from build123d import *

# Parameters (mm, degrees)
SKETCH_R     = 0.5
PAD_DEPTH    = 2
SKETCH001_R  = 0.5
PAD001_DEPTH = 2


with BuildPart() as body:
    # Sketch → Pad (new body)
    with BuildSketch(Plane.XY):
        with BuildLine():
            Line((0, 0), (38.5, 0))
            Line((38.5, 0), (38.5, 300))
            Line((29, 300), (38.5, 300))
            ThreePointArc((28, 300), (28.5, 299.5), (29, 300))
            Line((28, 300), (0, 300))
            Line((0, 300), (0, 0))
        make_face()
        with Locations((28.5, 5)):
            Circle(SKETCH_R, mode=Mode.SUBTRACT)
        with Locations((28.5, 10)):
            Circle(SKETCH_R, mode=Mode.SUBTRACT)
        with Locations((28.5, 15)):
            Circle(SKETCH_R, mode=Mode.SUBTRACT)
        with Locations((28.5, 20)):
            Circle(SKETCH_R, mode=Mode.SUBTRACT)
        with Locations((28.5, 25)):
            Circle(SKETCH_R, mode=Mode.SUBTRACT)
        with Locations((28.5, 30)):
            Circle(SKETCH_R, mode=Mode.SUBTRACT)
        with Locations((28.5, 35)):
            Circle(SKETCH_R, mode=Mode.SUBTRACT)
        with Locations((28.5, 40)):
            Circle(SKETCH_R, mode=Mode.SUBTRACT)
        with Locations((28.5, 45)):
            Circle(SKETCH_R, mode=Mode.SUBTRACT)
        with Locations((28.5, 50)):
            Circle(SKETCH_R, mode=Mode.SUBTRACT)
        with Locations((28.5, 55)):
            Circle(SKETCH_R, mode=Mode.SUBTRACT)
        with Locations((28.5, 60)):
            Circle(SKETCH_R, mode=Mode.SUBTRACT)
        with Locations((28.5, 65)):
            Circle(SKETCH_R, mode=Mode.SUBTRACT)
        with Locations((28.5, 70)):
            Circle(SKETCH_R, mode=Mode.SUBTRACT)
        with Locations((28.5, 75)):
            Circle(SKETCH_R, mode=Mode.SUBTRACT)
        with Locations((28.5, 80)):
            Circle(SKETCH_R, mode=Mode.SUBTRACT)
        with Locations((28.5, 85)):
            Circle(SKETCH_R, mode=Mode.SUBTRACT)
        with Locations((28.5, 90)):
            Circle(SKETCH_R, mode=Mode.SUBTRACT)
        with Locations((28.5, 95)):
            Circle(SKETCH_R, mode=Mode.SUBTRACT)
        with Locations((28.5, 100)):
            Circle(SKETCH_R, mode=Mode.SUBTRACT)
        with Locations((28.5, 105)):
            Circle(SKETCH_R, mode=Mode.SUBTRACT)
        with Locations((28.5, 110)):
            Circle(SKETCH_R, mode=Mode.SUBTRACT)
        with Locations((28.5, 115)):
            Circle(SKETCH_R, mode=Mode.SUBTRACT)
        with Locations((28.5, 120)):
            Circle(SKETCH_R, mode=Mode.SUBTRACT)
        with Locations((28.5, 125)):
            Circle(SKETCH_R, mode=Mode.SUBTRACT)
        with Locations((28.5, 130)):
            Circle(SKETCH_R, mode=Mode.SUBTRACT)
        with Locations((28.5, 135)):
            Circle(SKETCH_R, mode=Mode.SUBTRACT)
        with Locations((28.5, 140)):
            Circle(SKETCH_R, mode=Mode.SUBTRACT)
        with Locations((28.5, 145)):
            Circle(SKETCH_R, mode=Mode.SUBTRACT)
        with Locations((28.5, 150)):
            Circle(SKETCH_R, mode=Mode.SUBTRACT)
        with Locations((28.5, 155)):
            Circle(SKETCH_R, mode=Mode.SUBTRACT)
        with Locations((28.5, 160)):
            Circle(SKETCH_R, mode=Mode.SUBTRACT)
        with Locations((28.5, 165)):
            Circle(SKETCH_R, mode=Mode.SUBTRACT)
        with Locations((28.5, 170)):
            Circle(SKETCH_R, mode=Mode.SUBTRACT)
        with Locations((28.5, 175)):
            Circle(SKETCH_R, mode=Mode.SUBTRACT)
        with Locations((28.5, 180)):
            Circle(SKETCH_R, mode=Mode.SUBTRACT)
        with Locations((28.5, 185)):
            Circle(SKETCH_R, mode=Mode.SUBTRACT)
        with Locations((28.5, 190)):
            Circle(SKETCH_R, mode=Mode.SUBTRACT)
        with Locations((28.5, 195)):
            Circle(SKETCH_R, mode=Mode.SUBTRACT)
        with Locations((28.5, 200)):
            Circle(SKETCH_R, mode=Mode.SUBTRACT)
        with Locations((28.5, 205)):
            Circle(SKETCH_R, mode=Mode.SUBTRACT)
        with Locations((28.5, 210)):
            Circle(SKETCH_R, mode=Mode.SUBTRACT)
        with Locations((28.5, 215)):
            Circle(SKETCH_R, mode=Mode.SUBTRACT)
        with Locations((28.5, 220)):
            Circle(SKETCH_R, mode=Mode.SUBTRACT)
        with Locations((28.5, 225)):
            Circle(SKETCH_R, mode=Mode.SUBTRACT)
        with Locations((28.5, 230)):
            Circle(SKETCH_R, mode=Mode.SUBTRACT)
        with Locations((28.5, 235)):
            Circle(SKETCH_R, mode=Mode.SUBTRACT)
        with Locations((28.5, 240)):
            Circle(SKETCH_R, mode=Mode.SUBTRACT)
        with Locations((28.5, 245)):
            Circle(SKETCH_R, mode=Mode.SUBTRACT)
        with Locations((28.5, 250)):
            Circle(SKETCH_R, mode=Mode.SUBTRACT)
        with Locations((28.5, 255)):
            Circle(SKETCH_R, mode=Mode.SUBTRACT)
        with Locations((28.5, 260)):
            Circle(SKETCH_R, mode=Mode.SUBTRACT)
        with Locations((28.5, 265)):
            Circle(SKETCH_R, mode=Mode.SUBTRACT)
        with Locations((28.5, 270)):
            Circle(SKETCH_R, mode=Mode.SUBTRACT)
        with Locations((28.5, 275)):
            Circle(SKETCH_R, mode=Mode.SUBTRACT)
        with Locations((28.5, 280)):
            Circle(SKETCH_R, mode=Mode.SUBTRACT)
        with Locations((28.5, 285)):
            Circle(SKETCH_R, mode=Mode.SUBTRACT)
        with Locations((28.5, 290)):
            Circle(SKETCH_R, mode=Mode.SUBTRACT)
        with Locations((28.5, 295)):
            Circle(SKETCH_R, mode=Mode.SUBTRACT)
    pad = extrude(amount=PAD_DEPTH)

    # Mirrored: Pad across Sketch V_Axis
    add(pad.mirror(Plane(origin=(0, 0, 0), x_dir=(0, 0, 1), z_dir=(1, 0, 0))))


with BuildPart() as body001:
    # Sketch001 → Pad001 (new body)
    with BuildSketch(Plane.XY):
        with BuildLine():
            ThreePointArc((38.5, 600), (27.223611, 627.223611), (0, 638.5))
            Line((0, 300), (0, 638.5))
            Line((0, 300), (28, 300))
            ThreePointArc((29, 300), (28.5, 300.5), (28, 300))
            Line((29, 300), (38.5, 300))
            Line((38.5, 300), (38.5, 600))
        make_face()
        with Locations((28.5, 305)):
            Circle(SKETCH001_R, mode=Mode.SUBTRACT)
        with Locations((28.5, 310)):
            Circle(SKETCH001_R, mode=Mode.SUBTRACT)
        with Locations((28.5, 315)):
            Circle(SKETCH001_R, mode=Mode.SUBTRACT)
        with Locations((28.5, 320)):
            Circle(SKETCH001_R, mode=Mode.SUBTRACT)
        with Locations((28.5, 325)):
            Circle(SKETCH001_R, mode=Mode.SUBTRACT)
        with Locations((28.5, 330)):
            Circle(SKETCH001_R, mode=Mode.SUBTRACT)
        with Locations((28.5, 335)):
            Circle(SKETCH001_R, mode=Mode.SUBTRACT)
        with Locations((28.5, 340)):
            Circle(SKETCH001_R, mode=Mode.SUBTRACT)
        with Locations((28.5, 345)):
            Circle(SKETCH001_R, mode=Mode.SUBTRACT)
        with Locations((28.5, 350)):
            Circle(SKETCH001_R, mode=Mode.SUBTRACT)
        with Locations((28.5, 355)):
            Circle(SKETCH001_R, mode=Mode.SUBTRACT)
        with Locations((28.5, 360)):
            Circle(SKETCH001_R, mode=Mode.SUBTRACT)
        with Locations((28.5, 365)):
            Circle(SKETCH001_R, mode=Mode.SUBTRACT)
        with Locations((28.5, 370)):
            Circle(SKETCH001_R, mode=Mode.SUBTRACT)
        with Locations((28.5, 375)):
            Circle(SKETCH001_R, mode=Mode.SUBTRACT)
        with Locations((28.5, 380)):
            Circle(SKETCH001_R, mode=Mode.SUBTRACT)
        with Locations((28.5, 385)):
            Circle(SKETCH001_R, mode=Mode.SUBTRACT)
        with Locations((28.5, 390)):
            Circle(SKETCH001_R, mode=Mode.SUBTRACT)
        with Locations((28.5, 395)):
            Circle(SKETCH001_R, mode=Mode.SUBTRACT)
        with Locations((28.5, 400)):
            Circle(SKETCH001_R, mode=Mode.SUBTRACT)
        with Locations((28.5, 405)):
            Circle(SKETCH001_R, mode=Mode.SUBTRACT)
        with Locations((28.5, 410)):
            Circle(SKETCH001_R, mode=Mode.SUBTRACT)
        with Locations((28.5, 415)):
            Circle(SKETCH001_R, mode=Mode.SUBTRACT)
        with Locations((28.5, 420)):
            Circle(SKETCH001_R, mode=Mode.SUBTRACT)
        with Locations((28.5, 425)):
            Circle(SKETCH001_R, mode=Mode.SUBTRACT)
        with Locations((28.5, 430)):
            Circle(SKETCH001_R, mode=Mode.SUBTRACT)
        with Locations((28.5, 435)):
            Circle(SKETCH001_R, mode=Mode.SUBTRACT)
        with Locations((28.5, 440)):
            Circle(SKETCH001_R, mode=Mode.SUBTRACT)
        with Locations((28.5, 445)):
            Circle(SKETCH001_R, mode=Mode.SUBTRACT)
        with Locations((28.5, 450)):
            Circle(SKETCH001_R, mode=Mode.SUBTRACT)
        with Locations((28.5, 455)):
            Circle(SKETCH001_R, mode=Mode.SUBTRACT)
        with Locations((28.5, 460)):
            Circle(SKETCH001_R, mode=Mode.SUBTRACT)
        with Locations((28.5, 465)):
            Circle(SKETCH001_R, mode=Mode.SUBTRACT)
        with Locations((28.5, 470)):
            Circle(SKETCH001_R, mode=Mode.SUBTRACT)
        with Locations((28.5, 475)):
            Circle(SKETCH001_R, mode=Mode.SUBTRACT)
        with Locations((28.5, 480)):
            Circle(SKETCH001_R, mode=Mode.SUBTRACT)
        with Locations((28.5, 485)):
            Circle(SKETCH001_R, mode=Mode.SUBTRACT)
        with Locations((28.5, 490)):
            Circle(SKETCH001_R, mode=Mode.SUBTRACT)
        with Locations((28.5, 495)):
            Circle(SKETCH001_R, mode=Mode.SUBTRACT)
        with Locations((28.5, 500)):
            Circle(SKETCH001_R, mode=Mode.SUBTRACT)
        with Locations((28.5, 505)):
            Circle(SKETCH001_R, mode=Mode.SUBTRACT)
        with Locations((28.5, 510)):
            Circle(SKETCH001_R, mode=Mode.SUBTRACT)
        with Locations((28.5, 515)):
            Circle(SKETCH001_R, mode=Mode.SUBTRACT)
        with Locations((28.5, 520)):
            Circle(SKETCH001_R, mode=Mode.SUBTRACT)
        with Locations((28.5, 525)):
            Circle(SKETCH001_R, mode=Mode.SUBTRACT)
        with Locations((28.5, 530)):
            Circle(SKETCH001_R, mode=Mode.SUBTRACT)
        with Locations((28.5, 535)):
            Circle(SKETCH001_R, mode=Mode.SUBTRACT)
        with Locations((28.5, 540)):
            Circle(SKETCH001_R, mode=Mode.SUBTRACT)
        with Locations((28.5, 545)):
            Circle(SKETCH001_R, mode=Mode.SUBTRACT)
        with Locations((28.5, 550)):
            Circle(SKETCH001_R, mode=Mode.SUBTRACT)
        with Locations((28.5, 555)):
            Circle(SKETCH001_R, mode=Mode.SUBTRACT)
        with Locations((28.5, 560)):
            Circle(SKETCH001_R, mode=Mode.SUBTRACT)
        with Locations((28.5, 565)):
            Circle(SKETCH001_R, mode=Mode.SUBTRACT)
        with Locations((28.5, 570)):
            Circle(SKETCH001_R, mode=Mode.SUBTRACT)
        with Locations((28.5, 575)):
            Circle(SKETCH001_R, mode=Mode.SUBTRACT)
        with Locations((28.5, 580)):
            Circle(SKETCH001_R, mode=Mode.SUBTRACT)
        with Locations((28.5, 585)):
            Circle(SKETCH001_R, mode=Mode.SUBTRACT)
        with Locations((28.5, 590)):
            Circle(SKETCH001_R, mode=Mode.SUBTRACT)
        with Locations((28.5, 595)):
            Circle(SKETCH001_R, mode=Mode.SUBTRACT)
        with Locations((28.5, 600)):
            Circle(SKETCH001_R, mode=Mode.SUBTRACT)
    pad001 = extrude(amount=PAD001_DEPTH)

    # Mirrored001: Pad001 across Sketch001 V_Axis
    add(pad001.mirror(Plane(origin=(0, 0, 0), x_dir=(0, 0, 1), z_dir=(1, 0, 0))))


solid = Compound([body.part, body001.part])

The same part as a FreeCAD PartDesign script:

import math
import FreeCAD as App
import Part
import Sketcher

V = App.Vector
Q = App.Units.Quantity

doc = App.newDocument("Part")
body = doc.addObject("PartDesign::Body", "Body")

# Sketch on XY plane
sketch1 = body.newObject("Sketcher::SketchObject", "Sketch")
sketch1.AttachmentSupport = (doc.getObject("XY_Plane"), [""])
sketch1.MapMode = "FlatFace"
sketch1.addGeometry(Part.LineSegment(V(0, 0, 0), V(38.5, 0, 0)), False)
sketch1.addGeometry(Part.LineSegment(V(38.5, 0, 0), V(38.5, 300, 0)), False)
sketch1.addGeometry(Part.LineSegment(V(38.5, 300, 0), V(29, 300, 0)), False)
sketch1.addGeometry(Part.ArcOfCircle(Part.Circle(V(28.5, 300, 0), V(0, 0, 1), 0.5), math.radians(180), math.radians(360)), False)
sketch1.addGeometry(Part.LineSegment(V(28, 300, 0), V(0, 300, 0)), False)
sketch1.addGeometry(Part.LineSegment(V(0, 300, 0), V(0, 0, 0)), False)
sketch1.addGeometry(Part.Circle(V(28.5, 5, 0), V(0, 0, 1), 0.5), False)
sketch1.addGeometry(Part.Circle(V(28.5, 10, 0), V(0, 0, 1), 0.5), False)
sketch1.addGeometry(Part.Circle(V(28.5, 15, 0), V(0, 0, 1), 0.5), False)
sketch1.addGeometry(Part.Circle(V(28.5, 20, 0), V(0, 0, 1), 0.5), False)
sketch1.addGeometry(Part.Circle(V(28.5, 25, 0), V(0, 0, 1), 0.5), False)
sketch1.addGeometry(Part.Circle(V(28.5, 30, 0), V(0, 0, 1), 0.5), False)
sketch1.addGeometry(Part.Circle(V(28.5, 35, 0), V(0, 0, 1), 0.5), False)
sketch1.addGeometry(Part.Circle(V(28.5, 40, 0), V(0, 0, 1), 0.5), False)
sketch1.addGeometry(Part.Circle(V(28.5, 45, 0), V(0, 0, 1), 0.5), False)
sketch1.addGeometry(Part.Circle(V(28.5, 50, 0), V(0, 0, 1), 0.5), False)
sketch1.addGeometry(Part.Circle(V(28.5, 55, 0), V(0, 0, 1), 0.5), False)
sketch1.addGeometry(Part.Circle(V(28.5, 60, 0), V(0, 0, 1), 0.5), False)
sketch1.addGeometry(Part.Circle(V(28.5, 65, 0), V(0, 0, 1), 0.5), False)
sketch1.addGeometry(Part.Circle(V(28.5, 70, 0), V(0, 0, 1), 0.5), False)
sketch1.addGeometry(Part.Circle(V(28.5, 75, 0), V(0, 0, 1), 0.5), False)
sketch1.addGeometry(Part.Circle(V(28.5, 80, 0), V(0, 0, 1), 0.5), False)
sketch1.addGeometry(Part.Circle(V(28.5, 85, 0), V(0, 0, 1), 0.5), False)
sketch1.addGeometry(Part.Circle(V(28.5, 90, 0), V(0, 0, 1), 0.5), False)
sketch1.addGeometry(Part.Circle(V(28.5, 95, 0), V(0, 0, 1), 0.5), False)
sketch1.addGeometry(Part.Circle(V(28.5, 100, 0), V(0, 0, 1), 0.5), False)
sketch1.addGeometry(Part.Circle(V(28.5, 105, 0), V(0, 0, 1), 0.5), False)
sketch1.addGeometry(Part.Circle(V(28.5, 110, 0), V(0, 0, 1), 0.5), False)
sketch1.addGeometry(Part.Circle(V(28.5, 115, 0), V(0, 0, 1), 0.5), False)
sketch1.addGeometry(Part.Circle(V(28.5, 120, 0), V(0, 0, 1), 0.5), False)
sketch1.addGeometry(Part.Circle(V(28.5, 125, 0), V(0, 0, 1), 0.5), False)
sketch1.addGeometry(Part.Circle(V(28.5, 130, 0), V(0, 0, 1), 0.5), False)
sketch1.addGeometry(Part.Circle(V(28.5, 135, 0), V(0, 0, 1), 0.5), False)
sketch1.addGeometry(Part.Circle(V(28.5, 140, 0), V(0, 0, 1), 0.5), False)
sketch1.addGeometry(Part.Circle(V(28.5, 145, 0), V(0, 0, 1), 0.5), False)
sketch1.addGeometry(Part.Circle(V(28.5, 150, 0), V(0, 0, 1), 0.5), False)
sketch1.addGeometry(Part.Circle(V(28.5, 155, 0), V(0, 0, 1), 0.5), False)
sketch1.addGeometry(Part.Circle(V(28.5, 160, 0), V(0, 0, 1), 0.5), False)
sketch1.addGeometry(Part.Circle(V(28.5, 165, 0), V(0, 0, 1), 0.5), False)
sketch1.addGeometry(Part.Circle(V(28.5, 170, 0), V(0, 0, 1), 0.5), False)
sketch1.addGeometry(Part.Circle(V(28.5, 175, 0), V(0, 0, 1), 0.5), False)
sketch1.addGeometry(Part.Circle(V(28.5, 180, 0), V(0, 0, 1), 0.5), False)
sketch1.addGeometry(Part.Circle(V(28.5, 185, 0), V(0, 0, 1), 0.5), False)
sketch1.addGeometry(Part.Circle(V(28.5, 190, 0), V(0, 0, 1), 0.5), False)
sketch1.addGeometry(Part.Circle(V(28.5, 195, 0), V(0, 0, 1), 0.5), False)
sketch1.addGeometry(Part.Circle(V(28.5, 200, 0), V(0, 0, 1), 0.5), False)
sketch1.addGeometry(Part.Circle(V(28.5, 205, 0), V(0, 0, 1), 0.5), False)
sketch1.addGeometry(Part.Circle(V(28.5, 210, 0), V(0, 0, 1), 0.5), False)
sketch1.addGeometry(Part.Circle(V(28.5, 215, 0), V(0, 0, 1), 0.5), False)
sketch1.addGeometry(Part.Circle(V(28.5, 220, 0), V(0, 0, 1), 0.5), False)
sketch1.addGeometry(Part.Circle(V(28.5, 225, 0), V(0, 0, 1), 0.5), False)
sketch1.addGeometry(Part.Circle(V(28.5, 230, 0), V(0, 0, 1), 0.5), False)
sketch1.addGeometry(Part.Circle(V(28.5, 235, 0), V(0, 0, 1), 0.5), False)
sketch1.addGeometry(Part.Circle(V(28.5, 240, 0), V(0, 0, 1), 0.5), False)
sketch1.addGeometry(Part.Circle(V(28.5, 245, 0), V(0, 0, 1), 0.5), False)
sketch1.addGeometry(Part.Circle(V(28.5, 250, 0), V(0, 0, 1), 0.5), False)
sketch1.addGeometry(Part.Circle(V(28.5, 255, 0), V(0, 0, 1), 0.5), False)
sketch1.addGeometry(Part.Circle(V(28.5, 260, 0), V(0, 0, 1), 0.5), False)
sketch1.addGeometry(Part.Circle(V(28.5, 265, 0), V(0, 0, 1), 0.5), False)
sketch1.addGeometry(Part.Circle(V(28.5, 270, 0), V(0, 0, 1), 0.5), False)
sketch1.addGeometry(Part.Circle(V(28.5, 275, 0), V(0, 0, 1), 0.5), False)
sketch1.addGeometry(Part.Circle(V(28.5, 280, 0), V(0, 0, 1), 0.5), False)
sketch1.addGeometry(Part.Circle(V(28.5, 285, 0), V(0, 0, 1), 0.5), False)
sketch1.addGeometry(Part.Circle(V(28.5, 290, 0), V(0, 0, 1), 0.5), False)
sketch1.addGeometry(Part.Circle(V(28.5, 295, 0), V(0, 0, 1), 0.5), False)
sketch1.addConstraint(Sketcher.Constraint("Coincident", 0, 2, 1, 1))
sketch1.addConstraint(Sketcher.Constraint("Coincident", 1, 2, 2, 1))
sketch1.addConstraint(Sketcher.Constraint("Coincident", 2, 2, 3, 2))
sketch1.addConstraint(Sketcher.Constraint("Coincident", 3, 1, 4, 1))
sketch1.addConstraint(Sketcher.Constraint("Coincident", 4, 2, 5, 1))
sketch1.addConstraint(Sketcher.Constraint("Coincident", 5, 2, 0, 1))
sketch1.addConstraint(Sketcher.Constraint("Horizontal", 0))
sketch1.addConstraint(Sketcher.Constraint("Vertical", 1))
sketch1.addConstraint(Sketcher.Constraint("Horizontal", 2))
sketch1.addConstraint(Sketcher.Constraint("Horizontal", 4))
sketch1.addConstraint(Sketcher.Constraint("Vertical", 5))
sketch1.addConstraint(Sketcher.Constraint("Coincident", 5, 2, -1, 1))
sketch1.addConstraint(Sketcher.Constraint("Equal", 3, 6))
sketch1.addConstraint(Sketcher.Constraint("Equal", 6, 7))
sketch1.addConstraint(Sketcher.Constraint("Equal", 7, 8))
sketch1.addConstraint(Sketcher.Constraint("Equal", 8, 9))
sketch1.addConstraint(Sketcher.Constraint("Equal", 9, 10))
sketch1.addConstraint(Sketcher.Constraint("Equal", 10, 11))
sketch1.addConstraint(Sketcher.Constraint("Equal", 11, 12))
sketch1.addConstraint(Sketcher.Constraint("Equal", 12, 13))
sketch1.addConstraint(Sketcher.Constraint("Equal", 13, 14))
sketch1.addConstraint(Sketcher.Constraint("Equal", 14, 15))
sketch1.addConstraint(Sketcher.Constraint("Equal", 15, 16))
sketch1.addConstraint(Sketcher.Constraint("Equal", 16, 17))
sketch1.addConstraint(Sketcher.Constraint("Equal", 17, 18))
sketch1.addConstraint(Sketcher.Constraint("Equal", 18, 19))
sketch1.addConstraint(Sketcher.Constraint("Equal", 19, 20))
sketch1.addConstraint(Sketcher.Constraint("Equal", 20, 21))
sketch1.addConstraint(Sketcher.Constraint("Equal", 21, 22))
sketch1.addConstraint(Sketcher.Constraint("Equal", 22, 23))
sketch1.addConstraint(Sketcher.Constraint("Equal", 23, 24))
sketch1.addConstraint(Sketcher.Constraint("Equal", 24, 25))
sketch1.addConstraint(Sketcher.Constraint("Equal", 25, 26))
sketch1.addConstraint(Sketcher.Constraint("Equal", 26, 27))
sketch1.addConstraint(Sketcher.Constraint("Equal", 27, 28))
sketch1.addConstraint(Sketcher.Constraint("Equal", 28, 29))
sketch1.addConstraint(Sketcher.Constraint("Equal", 29, 30))
sketch1.addConstraint(Sketcher.Constraint("Equal", 30, 31))
sketch1.addConstraint(Sketcher.Constraint("Equal", 31, 32))
sketch1.addConstraint(Sketcher.Constraint("Equal", 32, 33))
sketch1.addConstraint(Sketcher.Constraint("Equal", 33, 34))
sketch1.addConstraint(Sketcher.Constraint("Equal", 34, 35))
sketch1.addConstraint(Sketcher.Constraint("Equal", 35, 36))
sketch1.addConstraint(Sketcher.Constraint("Equal", 36, 37))
sketch1.addConstraint(Sketcher.Constraint("Equal", 37, 38))
sketch1.addConstraint(Sketcher.Constraint("Equal", 38, 39))
sketch1.addConstraint(Sketcher.Constraint("Equal", 39, 40))
sketch1.addConstraint(Sketcher.Constraint("Equal", 40, 41))
sketch1.addConstraint(Sketcher.Constraint("Equal", 41, 42))
sketch1.addConstraint(Sketcher.Constraint("Equal", 42, 43))
sketch1.addConstraint(Sketcher.Constraint("Equal", 43, 44))
sketch1.addConstraint(Sketcher.Constraint("Equal", 44, 45))
sketch1.addConstraint(Sketcher.Constraint("Equal", 45, 46))
sketch1.addConstraint(Sketcher.Constraint("Equal", 46, 47))
sketch1.addConstraint(Sketcher.Constraint("Equal", 47, 48))
sketch1.addConstraint(Sketcher.Constraint("Equal", 48, 49))
sketch1.addConstraint(Sketcher.Constraint("Equal", 49, 50))
sketch1.addConstraint(Sketcher.Constraint("Equal", 50, 51))
sketch1.addConstraint(Sketcher.Constraint("Equal", 51, 52))
sketch1.addConstraint(Sketcher.Constraint("Equal", 52, 53))
sketch1.addConstraint(Sketcher.Constraint("Equal", 53, 54))
sketch1.addConstraint(Sketcher.Constraint("Equal", 54, 55))
sketch1.addConstraint(Sketcher.Constraint("Equal", 55, 56))
sketch1.addConstraint(Sketcher.Constraint("Equal", 56, 57))
sketch1.addConstraint(Sketcher.Constraint("Equal", 57, 58))
sketch1.addConstraint(Sketcher.Constraint("Equal", 58, 59))
sketch1.addConstraint(Sketcher.Constraint("Equal", 59, 60))
sketch1.addConstraint(Sketcher.Constraint("Equal", 60, 61))
sketch1.addConstraint(Sketcher.Constraint("Equal", 61, 62))
sketch1.addConstraint(Sketcher.Constraint("Equal", 62, 63))
sketch1.addConstraint(Sketcher.Constraint("Equal", 63, 64))
sketch1.addConstraint(Sketcher.Constraint("Horizontal", 3, 3, 1, 2))
sketch1.addConstraint(Sketcher.Constraint("Horizontal", 2, 2, 3, 1))
sketch1.addConstraint(Sketcher.Constraint("Vertical", 3, 3, 6, 3))
sketch1.addConstraint(Sketcher.Constraint("Vertical", 6, 3, 7, 3))
sketch1.addConstraint(Sketcher.Constraint("Vertical", 7, 3, 8, 3))
sketch1.addConstraint(Sketcher.Constraint("Vertical", 8, 3, 9, 3))
sketch1.addConstraint(Sketcher.Constraint("Vertical", 9, 3, 10, 3))
sketch1.addConstraint(Sketcher.Constraint("Vertical", 10, 3, 11, 3))
sketch1.addConstraint(Sketcher.Constraint("Vertical", 11, 3, 12, 3))
sketch1.addConstraint(Sketcher.Constraint("Vertical", 12, 3, 13, 3))
sketch1.addConstraint(Sketcher.Constraint("Vertical", 13, 3, 14, 3))
sketch1.addConstraint(Sketcher.Constraint("Vertical", 14, 3, 15, 3))
sketch1.addConstraint(Sketcher.Constraint("Vertical", 15, 3, 16, 3))
sketch1.addConstraint(Sketcher.Constraint("Vertical", 16, 3, 17, 3))
sketch1.addConstraint(Sketcher.Constraint("Vertical", 17, 3, 18, 3))
sketch1.addConstraint(Sketcher.Constraint("Vertical", 18, 3, 19, 3))
sketch1.addConstraint(Sketcher.Constraint("Vertical", 19, 3, 20, 3))
sketch1.addConstraint(Sketcher.Constraint("Vertical", 20, 3, 21, 3))
sketch1.addConstraint(Sketcher.Constraint("Vertical", 21, 3, 22, 3))
sketch1.addConstraint(Sketcher.Constraint("Vertical", 22, 3, 23, 3))
sketch1.addConstraint(Sketcher.Constraint("Vertical", 23, 3, 24, 3))
sketch1.addConstraint(Sketcher.Constraint("Vertical", 24, 3, 25, 3))
sketch1.addConstraint(Sketcher.Constraint("Vertical", 25, 3, 26, 3))
sketch1.addConstraint(Sketcher.Constraint("Vertical", 26, 3, 27, 3))
sketch1.addConstraint(Sketcher.Constraint("Vertical", 27, 3, 28, 3))
sketch1.addConstraint(Sketcher.Constraint("Vertical", 28, 3, 29, 3))
sketch1.addConstraint(Sketcher.Constraint("Vertical", 29, 3, 30, 3))
sketch1.addConstraint(Sketcher.Constraint("Vertical", 30, 3, 31, 3))
sketch1.addConstraint(Sketcher.Constraint("Vertical", 31, 3, 32, 3))
sketch1.addConstraint(Sketcher.Constraint("Vertical", 32, 3, 33, 3))
sketch1.addConstraint(Sketcher.Constraint("Vertical", 33, 3, 34, 3))
sketch1.addConstraint(Sketcher.Constraint("Vertical", 34, 3, 35, 3))
sketch1.addConstraint(Sketcher.Constraint("Vertical", 35, 3, 36, 3))
sketch1.addConstraint(Sketcher.Constraint("Vertical", 36, 3, 37, 3))
sketch1.addConstraint(Sketcher.Constraint("Vertical", 37, 3, 38, 3))
sketch1.addConstraint(Sketcher.Constraint("Vertical", 38, 3, 39, 3))
sketch1.addConstraint(Sketcher.Constraint("Vertical", 39, 3, 40, 3))
sketch1.addConstraint(Sketcher.Constraint("Vertical", 40, 3, 41, 3))
sketch1.addConstraint(Sketcher.Constraint("Vertical", 41, 3, 42, 3))
sketch1.addConstraint(Sketcher.Constraint("Vertical", 42, 3, 43, 3))
sketch1.addConstraint(Sketcher.Constraint("Vertical", 43, 3, 44, 3))
sketch1.addConstraint(Sketcher.Constraint("Vertical", 44, 3, 45, 3))
sketch1.addConstraint(Sketcher.Constraint("Vertical", 45, 3, 46, 3))
sketch1.addConstraint(Sketcher.Constraint("Vertical", 46, 3, 47, 3))
sketch1.addConstraint(Sketcher.Constraint("Vertical", 47, 3, 48, 3))
sketch1.addConstraint(Sketcher.Constraint("Vertical", 48, 3, 49, 3))
sketch1.addConstraint(Sketcher.Constraint("Vertical", 49, 3, 50, 3))
sketch1.addConstraint(Sketcher.Constraint("Vertical", 50, 3, 51, 3))
sketch1.addConstraint(Sketcher.Constraint("Vertical", 51, 3, 52, 3))
sketch1.addConstraint(Sketcher.Constraint("Vertical", 52, 3, 53, 3))
sketch1.addConstraint(Sketcher.Constraint("Vertical", 53, 3, 54, 3))
sketch1.addConstraint(Sketcher.Constraint("Vertical", 54, 3, 55, 3))
sketch1.addConstraint(Sketcher.Constraint("Vertical", 55, 3, 56, 3))
sketch1.addConstraint(Sketcher.Constraint("Vertical", 56, 3, 57, 3))
sketch1.addConstraint(Sketcher.Constraint("Vertical", 57, 3, 58, 3))
sketch1.addConstraint(Sketcher.Constraint("Vertical", 58, 3, 59, 3))
sketch1.addConstraint(Sketcher.Constraint("Vertical", 59, 3, 60, 3))
sketch1.addConstraint(Sketcher.Constraint("Vertical", 60, 3, 61, 3))
sketch1.addConstraint(Sketcher.Constraint("Vertical", 61, 3, 62, 3))
sketch1.addConstraint(Sketcher.Constraint("Vertical", 62, 3, 63, 3))
sketch1.addConstraint(Sketcher.Constraint("Vertical", 63, 3, 64, 3))
sketch1.addConstraint(Sketcher.Constraint("Diameter", 6, Q("1 mm")))
sketch1.addConstraint(Sketcher.Constraint("DistanceX", 4, 2, 4, 1, Q("28 mm")))
sketch1.addConstraint(Sketcher.Constraint("DistanceY", 1, 1, 1, 2, Q("300 mm")))
sketch1.addConstraint(Sketcher.Constraint("DistanceX", 0, 1, 0, 2, Q("38.5 mm")))
sketch1.addConstraint(Sketcher.Constraint("DistanceY", -1, 1, 6, 3, Q("5 mm")))
sketch1.addConstraint(Sketcher.Constraint("DistanceY", -1, 1, 7, 3, Q("10 mm")))
sketch1.addConstraint(Sketcher.Constraint("DistanceY", -1, 1, 8, 3, Q("15 mm")))
sketch1.addConstraint(Sketcher.Constraint("DistanceY", -1, 1, 9, 3, Q("20 mm")))
sketch1.addConstraint(Sketcher.Constraint("DistanceY", -1, 1, 10, 3, Q("25 mm")))
sketch1.addConstraint(Sketcher.Constraint("DistanceY", -1, 1, 11, 3, Q("30 mm")))
sketch1.addConstraint(Sketcher.Constraint("DistanceY", -1, 1, 12, 3, Q("35 mm")))
sketch1.addConstraint(Sketcher.Constraint("DistanceY", -1, 1, 13, 3, Q("40 mm")))
sketch1.addConstraint(Sketcher.Constraint("DistanceY", -1, 1, 14, 3, Q("45 mm")))
sketch1.addConstraint(Sketcher.Constraint("DistanceY", -1, 1, 15, 3, Q("50 mm")))
sketch1.addConstraint(Sketcher.Constraint("DistanceY", -1, 1, 16, 3, Q("55 mm")))
sketch1.addConstraint(Sketcher.Constraint("DistanceY", -1, 1, 17, 3, Q("60 mm")))
sketch1.addConstraint(Sketcher.Constraint("DistanceY", -1, 1, 18, 3, Q("65 mm")))
sketch1.addConstraint(Sketcher.Constraint("DistanceY", -1, 1, 19, 3, Q("70 mm")))
sketch1.addConstraint(Sketcher.Constraint("DistanceY", -1, 1, 20, 3, Q("75 mm")))
sketch1.addConstraint(Sketcher.Constraint("DistanceY", -1, 1, 21, 3, Q("80 mm")))
sketch1.addConstraint(Sketcher.Constraint("DistanceY", -1, 1, 22, 3, Q("85 mm")))
sketch1.addConstraint(Sketcher.Constraint("DistanceY", -1, 1, 23, 3, Q("90 mm")))
sketch1.addConstraint(Sketcher.Constraint("DistanceY", -1, 1, 24, 3, Q("95 mm")))
sketch1.addConstraint(Sketcher.Constraint("DistanceY", -1, 1, 25, 3, Q("100 mm")))
sketch1.addConstraint(Sketcher.Constraint("DistanceY", -1, 1, 26, 3, Q("105 mm")))
sketch1.addConstraint(Sketcher.Constraint("DistanceY", -1, 1, 27, 3, Q("110 mm")))
sketch1.addConstraint(Sketcher.Constraint("DistanceY", -1, 1, 28, 3, Q("115 mm")))
sketch1.addConstraint(Sketcher.Constraint("DistanceY", -1, 1, 29, 3, Q("120 mm")))
sketch1.addConstraint(Sketcher.Constraint("DistanceY", -1, 1, 30, 3, Q("125 mm")))
sketch1.addConstraint(Sketcher.Constraint("DistanceY", -1, 1, 31, 3, Q("130 mm")))
sketch1.addConstraint(Sketcher.Constraint("DistanceY", -1, 1, 32, 3, Q("135 mm")))
sketch1.addConstraint(Sketcher.Constraint("DistanceY", -1, 1, 33, 3, Q("140 mm")))
sketch1.addConstraint(Sketcher.Constraint("DistanceY", -1, 1, 34, 3, Q("145 mm")))
sketch1.addConstraint(Sketcher.Constraint("DistanceY", -1, 1, 35, 3, Q("150 mm")))
sketch1.addConstraint(Sketcher.Constraint("DistanceY", -1, 1, 36, 3, Q("155 mm")))
sketch1.addConstraint(Sketcher.Constraint("DistanceY", -1, 1, 37, 3, Q("160 mm")))
sketch1.addConstraint(Sketcher.Constraint("DistanceY", -1, 1, 38, 3, Q("165 mm")))
sketch1.addConstraint(Sketcher.Constraint("DistanceY", -1, 1, 39, 3, Q("170 mm")))
sketch1.addConstraint(Sketcher.Constraint("DistanceY", -1, 1, 40, 3, Q("175 mm")))
sketch1.addConstraint(Sketcher.Constraint("DistanceY", -1, 1, 41, 3, Q("180 mm")))
sketch1.addConstraint(Sketcher.Constraint("DistanceY", -1, 1, 42, 3, Q("185 mm")))
sketch1.addConstraint(Sketcher.Constraint("DistanceY", -1, 1, 43, 3, Q("190 mm")))
sketch1.addConstraint(Sketcher.Constraint("DistanceY", -1, 1, 44, 3, Q("195 mm")))
sketch1.addConstraint(Sketcher.Constraint("DistanceY", -1, 1, 45, 3, Q("200 mm")))
sketch1.addConstraint(Sketcher.Constraint("DistanceY", -1, 1, 46, 3, Q("205 mm")))
sketch1.addConstraint(Sketcher.Constraint("DistanceY", -1, 1, 47, 3, Q("210 mm")))
sketch1.addConstraint(Sketcher.Constraint("DistanceY", -1, 1, 48, 3, Q("215 mm")))
sketch1.addConstraint(Sketcher.Constraint("DistanceY", -1, 1, 49, 3, Q("220 mm")))
sketch1.addConstraint(Sketcher.Constraint("DistanceY", -1, 1, 50, 3, Q("225 mm")))
sketch1.addConstraint(Sketcher.Constraint("DistanceY", -1, 1, 51, 3, Q("230 mm")))
sketch1.addConstraint(Sketcher.Constraint("DistanceY", -1, 1, 52, 3, Q("235 mm")))
sketch1.addConstraint(Sketcher.Constraint("DistanceY", -1, 1, 53, 3, Q("240 mm")))
sketch1.addConstraint(Sketcher.Constraint("DistanceY", -1, 1, 54, 3, Q("245 mm")))
sketch1.addConstraint(Sketcher.Constraint("DistanceY", -1, 1, 55, 3, Q("250 mm")))
sketch1.addConstraint(Sketcher.Constraint("DistanceY", -1, 1, 56, 3, Q("255 mm")))
sketch1.addConstraint(Sketcher.Constraint("DistanceY", -1, 1, 57, 3, Q("260 mm")))
sketch1.addConstraint(Sketcher.Constraint("DistanceY", -1, 1, 58, 3, Q("265 mm")))
sketch1.addConstraint(Sketcher.Constraint("DistanceY", -1, 1, 59, 3, Q("270 mm")))
sketch1.addConstraint(Sketcher.Constraint("DistanceY", -1, 1, 60, 3, Q("275 mm")))
sketch1.addConstraint(Sketcher.Constraint("DistanceY", -1, 1, 61, 3, Q("280 mm")))
sketch1.addConstraint(Sketcher.Constraint("DistanceY", -1, 1, 62, 3, Q("285 mm")))
sketch1.addConstraint(Sketcher.Constraint("DistanceY", -1, 1, 63, 3, Q("290 mm")))
sketch1.addConstraint(Sketcher.Constraint("DistanceY", -1, 1, 64, 3, Q("295 mm")))
pad1 = body.newObject("PartDesign::Pad", "Pad")
pad1.Profile = sketch1
pad1.Length = 2
doc.recompute()

mirrored = body.newObject("PartDesign::Mirrored", "Mirrored")
mirrored.Originals = [pad1]
mirrored.MirrorPlane = (doc.getObject("YZ_Plane"), [""])
body.Tip = mirrored
body2 = doc.addObject("PartDesign::Body", "Body001")

# Sketch on XY plane
sketch2 = body2.newObject("Sketcher::SketchObject", "Sketch001")
sketch2.AttachmentSupport = (doc.getObject("XY_Plane001"), [""])
sketch2.MapMode = "FlatFace"
sketch2.addGeometry(Part.ArcOfCircle(Part.Circle(V(0, 600, 0), V(0, 0, 1), 38.5), math.radians(0), math.radians(90)), False)
sketch2.addGeometry(Part.LineSegment(V(0, 638.5, 0), V(0, 300, 0)), False)
sketch2.addGeometry(Part.LineSegment(V(0, 300, 0), V(28, 300, 0)), False)
sketch2.addGeometry(Part.ArcOfCircle(Part.Circle(V(28.5, 300, 0), V(0, 0, 1), 0.5), math.radians(0), math.radians(180)), False)
sketch2.addGeometry(Part.LineSegment(V(29, 300, 0), V(38.5, 300, 0)), False)
sketch2.addGeometry(Part.LineSegment(V(38.5, 300, 0), V(38.5, 600, 0)), False)
sketch2.addGeometry(Part.Circle(V(28.5, 305, 0), V(0, 0, 1), 0.5), False)
sketch2.addGeometry(Part.Circle(V(28.5, 310, 0), V(0, 0, 1), 0.5), False)
sketch2.addGeometry(Part.Circle(V(28.5, 315, 0), V(0, 0, 1), 0.5), False)
sketch2.addGeometry(Part.Circle(V(28.5, 320, 0), V(0, 0, 1), 0.5), False)
sketch2.addGeometry(Part.Circle(V(28.5, 325, 0), V(0, 0, 1), 0.5), False)
sketch2.addGeometry(Part.Circle(V(28.5, 330, 0), V(0, 0, 1), 0.5), False)
sketch2.addGeometry(Part.Circle(V(28.5, 335, 0), V(0, 0, 1), 0.5), False)
sketch2.addGeometry(Part.Circle(V(28.5, 340, 0), V(0, 0, 1), 0.5), False)
sketch2.addGeometry(Part.Circle(V(28.5, 345, 0), V(0, 0, 1), 0.5), False)
sketch2.addGeometry(Part.Circle(V(28.5, 350, 0), V(0, 0, 1), 0.5), False)
sketch2.addGeometry(Part.Circle(V(28.5, 355, 0), V(0, 0, 1), 0.5), False)
sketch2.addGeometry(Part.Circle(V(28.5, 360, 0), V(0, 0, 1), 0.5), False)
sketch2.addGeometry(Part.Circle(V(28.5, 365, 0), V(0, 0, 1), 0.5), False)
sketch2.addGeometry(Part.Circle(V(28.5, 370, 0), V(0, 0, 1), 0.5), False)
sketch2.addGeometry(Part.Circle(V(28.5, 375, 0), V(0, 0, 1), 0.5), False)
sketch2.addGeometry(Part.Circle(V(28.5, 380, 0), V(0, 0, 1), 0.5), False)
sketch2.addGeometry(Part.Circle(V(28.5, 385, 0), V(0, 0, 1), 0.5), False)
sketch2.addGeometry(Part.Circle(V(28.5, 390, 0), V(0, 0, 1), 0.5), False)
sketch2.addGeometry(Part.Circle(V(28.5, 395, 0), V(0, 0, 1), 0.5), False)
sketch2.addGeometry(Part.Circle(V(28.5, 400, 0), V(0, 0, 1), 0.5), False)
sketch2.addGeometry(Part.Circle(V(28.5, 405, 0), V(0, 0, 1), 0.5), False)
sketch2.addGeometry(Part.Circle(V(28.5, 410, 0), V(0, 0, 1), 0.5), False)
sketch2.addGeometry(Part.Circle(V(28.5, 415, 0), V(0, 0, 1), 0.5), False)
sketch2.addGeometry(Part.Circle(V(28.5, 420, 0), V(0, 0, 1), 0.5), False)
sketch2.addGeometry(Part.Circle(V(28.5, 425, 0), V(0, 0, 1), 0.5), False)
sketch2.addGeometry(Part.Circle(V(28.5, 430, 0), V(0, 0, 1), 0.5), False)
sketch2.addGeometry(Part.Circle(V(28.5, 435, 0), V(0, 0, 1), 0.5), False)
sketch2.addGeometry(Part.Circle(V(28.5, 440, 0), V(0, 0, 1), 0.5), False)
sketch2.addGeometry(Part.Circle(V(28.5, 445, 0), V(0, 0, 1), 0.5), False)
sketch2.addGeometry(Part.Circle(V(28.5, 450, 0), V(0, 0, 1), 0.5), False)
sketch2.addGeometry(Part.Circle(V(28.5, 455, 0), V(0, 0, 1), 0.5), False)
sketch2.addGeometry(Part.Circle(V(28.5, 460, 0), V(0, 0, 1), 0.5), False)
sketch2.addGeometry(Part.Circle(V(28.5, 465, 0), V(0, 0, 1), 0.5), False)
sketch2.addGeometry(Part.Circle(V(28.5, 470, 0), V(0, 0, 1), 0.5), False)
sketch2.addGeometry(Part.Circle(V(28.5, 475, 0), V(0, 0, 1), 0.5), False)
sketch2.addGeometry(Part.Circle(V(28.5, 480, 0), V(0, 0, 1), 0.5), False)
sketch2.addGeometry(Part.Circle(V(28.5, 485, 0), V(0, 0, 1), 0.5), False)
sketch2.addGeometry(Part.Circle(V(28.5, 490, 0), V(0, 0, 1), 0.5), False)
sketch2.addGeometry(Part.Circle(V(28.5, 495, 0), V(0, 0, 1), 0.5), False)
sketch2.addGeometry(Part.Circle(V(28.5, 500, 0), V(0, 0, 1), 0.5), False)
sketch2.addGeometry(Part.Circle(V(28.5, 505, 0), V(0, 0, 1), 0.5), False)
sketch2.addGeometry(Part.Circle(V(28.5, 510, 0), V(0, 0, 1), 0.5), False)
sketch2.addGeometry(Part.Circle(V(28.5, 515, 0), V(0, 0, 1), 0.5), False)
sketch2.addGeometry(Part.Circle(V(28.5, 520, 0), V(0, 0, 1), 0.5), False)
sketch2.addGeometry(Part.Circle(V(28.5, 525, 0), V(0, 0, 1), 0.5), False)
sketch2.addGeometry(Part.Circle(V(28.5, 530, 0), V(0, 0, 1), 0.5), False)
sketch2.addGeometry(Part.Circle(V(28.5, 535, 0), V(0, 0, 1), 0.5), False)
sketch2.addGeometry(Part.Circle(V(28.5, 540, 0), V(0, 0, 1), 0.5), False)
sketch2.addGeometry(Part.Circle(V(28.5, 545, 0), V(0, 0, 1), 0.5), False)
sketch2.addGeometry(Part.Circle(V(28.5, 550, 0), V(0, 0, 1), 0.5), False)
sketch2.addGeometry(Part.Circle(V(28.5, 555, 0), V(0, 0, 1), 0.5), False)
sketch2.addGeometry(Part.Circle(V(28.5, 560, 0), V(0, 0, 1), 0.5), False)
sketch2.addGeometry(Part.Circle(V(28.5, 565, 0), V(0, 0, 1), 0.5), False)
sketch2.addGeometry(Part.Circle(V(28.5, 570, 0), V(0, 0, 1), 0.5), False)
sketch2.addGeometry(Part.Circle(V(28.5, 575, 0), V(0, 0, 1), 0.5), False)
sketch2.addGeometry(Part.Circle(V(28.5, 580, 0), V(0, 0, 1), 0.5), False)
sketch2.addGeometry(Part.Circle(V(28.5, 585, 0), V(0, 0, 1), 0.5), False)
sketch2.addGeometry(Part.Circle(V(28.5, 590, 0), V(0, 0, 1), 0.5), False)
sketch2.addGeometry(Part.Circle(V(28.5, 595, 0), V(0, 0, 1), 0.5), False)
sketch2.addGeometry(Part.Circle(V(28.5, 600, 0), V(0, 0, 1), 0.5), False)
sketch2.addConstraint(Sketcher.Constraint("Coincident", 0, 2, 1, 1))
sketch2.addConstraint(Sketcher.Constraint("Coincident", 1, 2, 2, 1))
sketch2.addConstraint(Sketcher.Constraint("Coincident", 2, 2, 3, 2))
sketch2.addConstraint(Sketcher.Constraint("Coincident", 3, 1, 4, 1))
sketch2.addConstraint(Sketcher.Constraint("Coincident", 4, 2, 5, 1))
sketch2.addConstraint(Sketcher.Constraint("Tangent", 5, 2, 0, 1))
sketch2.addConstraint(Sketcher.Constraint("Vertical", 1))
sketch2.addConstraint(Sketcher.Constraint("Horizontal", 2))
sketch2.addConstraint(Sketcher.Constraint("Horizontal", 4))
sketch2.addConstraint(Sketcher.Constraint("Vertical", 5))
sketch2.addConstraint(Sketcher.Constraint("Equal", 3, 6))
sketch2.addConstraint(Sketcher.Constraint("Equal", 6, 7))
sketch2.addConstraint(Sketcher.Constraint("Equal", 7, 8))
sketch2.addConstraint(Sketcher.Constraint("Equal", 8, 9))
sketch2.addConstraint(Sketcher.Constraint("Equal", 9, 10))
sketch2.addConstraint(Sketcher.Constraint("Equal", 10, 11))
sketch2.addConstraint(Sketcher.Constraint("Equal", 11, 12))
sketch2.addConstraint(Sketcher.Constraint("Equal", 12, 13))
sketch2.addConstraint(Sketcher.Constraint("Equal", 13, 14))
sketch2.addConstraint(Sketcher.Constraint("Equal", 14, 15))
sketch2.addConstraint(Sketcher.Constraint("Equal", 15, 16))
sketch2.addConstraint(Sketcher.Constraint("Equal", 16, 17))
sketch2.addConstraint(Sketcher.Constraint("Equal", 17, 18))
sketch2.addConstraint(Sketcher.Constraint("Equal", 18, 19))
sketch2.addConstraint(Sketcher.Constraint("Equal", 19, 20))
sketch2.addConstraint(Sketcher.Constraint("Equal", 20, 21))
sketch2.addConstraint(Sketcher.Constraint("Equal", 21, 22))
sketch2.addConstraint(Sketcher.Constraint("Equal", 22, 23))
sketch2.addConstraint(Sketcher.Constraint("Equal", 23, 24))
sketch2.addConstraint(Sketcher.Constraint("Equal", 24, 25))
sketch2.addConstraint(Sketcher.Constraint("Equal", 25, 26))
sketch2.addConstraint(Sketcher.Constraint("Equal", 26, 27))
sketch2.addConstraint(Sketcher.Constraint("Equal", 27, 28))
sketch2.addConstraint(Sketcher.Constraint("Equal", 28, 29))
sketch2.addConstraint(Sketcher.Constraint("Equal", 29, 30))
sketch2.addConstraint(Sketcher.Constraint("Equal", 30, 31))
sketch2.addConstraint(Sketcher.Constraint("Equal", 31, 32))
sketch2.addConstraint(Sketcher.Constraint("Equal", 32, 33))
sketch2.addConstraint(Sketcher.Constraint("Equal", 33, 34))
sketch2.addConstraint(Sketcher.Constraint("Equal", 34, 35))
sketch2.addConstraint(Sketcher.Constraint("Equal", 35, 36))
sketch2.addConstraint(Sketcher.Constraint("Equal", 36, 37))
sketch2.addConstraint(Sketcher.Constraint("Equal", 37, 38))
sketch2.addConstraint(Sketcher.Constraint("Equal", 38, 39))
sketch2.addConstraint(Sketcher.Constraint("Equal", 39, 40))
sketch2.addConstraint(Sketcher.Constraint("Equal", 40, 41))
sketch2.addConstraint(Sketcher.Constraint("Equal", 41, 42))
sketch2.addConstraint(Sketcher.Constraint("Equal", 42, 43))
sketch2.addConstraint(Sketcher.Constraint("Equal", 43, 44))
sketch2.addConstraint(Sketcher.Constraint("Equal", 44, 45))
sketch2.addConstraint(Sketcher.Constraint("Equal", 45, 46))
sketch2.addConstraint(Sketcher.Constraint("Equal", 46, 47))
sketch2.addConstraint(Sketcher.Constraint("Equal", 47, 48))
sketch2.addConstraint(Sketcher.Constraint("Equal", 48, 49))
sketch2.addConstraint(Sketcher.Constraint("Equal", 49, 50))
sketch2.addConstraint(Sketcher.Constraint("Equal", 50, 51))
sketch2.addConstraint(Sketcher.Constraint("Equal", 51, 52))
sketch2.addConstraint(Sketcher.Constraint("Equal", 52, 53))
sketch2.addConstraint(Sketcher.Constraint("Equal", 53, 54))
sketch2.addConstraint(Sketcher.Constraint("Equal", 54, 55))
sketch2.addConstraint(Sketcher.Constraint("Equal", 55, 56))
sketch2.addConstraint(Sketcher.Constraint("Equal", 56, 57))
sketch2.addConstraint(Sketcher.Constraint("Equal", 57, 58))
sketch2.addConstraint(Sketcher.Constraint("Equal", 58, 59))
sketch2.addConstraint(Sketcher.Constraint("Equal", 59, 60))
sketch2.addConstraint(Sketcher.Constraint("Equal", 60, 61))
sketch2.addConstraint(Sketcher.Constraint("Equal", 61, 62))
sketch2.addConstraint(Sketcher.Constraint("Equal", 62, 63))
sketch2.addConstraint(Sketcher.Constraint("Equal", 63, 64))
sketch2.addConstraint(Sketcher.Constraint("Equal", 64, 65))
sketch2.addConstraint(Sketcher.Constraint("PointOnObject", 0, 3, -2))
sketch2.addConstraint(Sketcher.Constraint("PointOnObject", 0, 2, -2))
sketch2.addConstraint(Sketcher.Constraint("Horizontal", 0, 3, 65, 3))
sketch2.addConstraint(Sketcher.Constraint("Horizontal", 3, 3, 1, 2))
sketch2.addConstraint(Sketcher.Constraint("Horizontal", 2, 2, 3, 1))
sketch2.addConstraint(Sketcher.Constraint("Vertical", 3, 3, 6, 3))
sketch2.addConstraint(Sketcher.Constraint("Vertical", 6, 3, 7, 3))
sketch2.addConstraint(Sketcher.Constraint("Vertical", 7, 3, 8, 3))
sketch2.addConstraint(Sketcher.Constraint("Vertical", 8, 3, 9, 3))
sketch2.addConstraint(Sketcher.Constraint("Vertical", 9, 3, 10, 3))
sketch2.addConstraint(Sketcher.Constraint("Vertical", 10, 3, 11, 3))
sketch2.addConstraint(Sketcher.Constraint("Vertical", 11, 3, 12, 3))
sketch2.addConstraint(Sketcher.Constraint("Vertical", 12, 3, 13, 3))
sketch2.addConstraint(Sketcher.Constraint("Vertical", 13, 3, 14, 3))
sketch2.addConstraint(Sketcher.Constraint("Vertical", 14, 3, 15, 3))
sketch2.addConstraint(Sketcher.Constraint("Vertical", 15, 3, 16, 3))
sketch2.addConstraint(Sketcher.Constraint("Vertical", 16, 3, 17, 3))
sketch2.addConstraint(Sketcher.Constraint("Vertical", 17, 3, 18, 3))
sketch2.addConstraint(Sketcher.Constraint("Vertical", 18, 3, 19, 3))
sketch2.addConstraint(Sketcher.Constraint("Vertical", 19, 3, 20, 3))
sketch2.addConstraint(Sketcher.Constraint("Vertical", 20, 3, 21, 3))
sketch2.addConstraint(Sketcher.Constraint("Vertical", 21, 3, 22, 3))
sketch2.addConstraint(Sketcher.Constraint("Vertical", 22, 3, 23, 3))
sketch2.addConstraint(Sketcher.Constraint("Vertical", 23, 3, 24, 3))
sketch2.addConstraint(Sketcher.Constraint("Vertical", 24, 3, 25, 3))
sketch2.addConstraint(Sketcher.Constraint("Vertical", 25, 3, 26, 3))
sketch2.addConstraint(Sketcher.Constraint("Vertical", 26, 3, 27, 3))
sketch2.addConstraint(Sketcher.Constraint("Vertical", 27, 3, 28, 3))
sketch2.addConstraint(Sketcher.Constraint("Vertical", 28, 3, 29, 3))
sketch2.addConstraint(Sketcher.Constraint("Vertical", 29, 3, 30, 3))
sketch2.addConstraint(Sketcher.Constraint("Vertical", 30, 3, 31, 3))
sketch2.addConstraint(Sketcher.Constraint("Vertical", 31, 3, 32, 3))
sketch2.addConstraint(Sketcher.Constraint("Vertical", 32, 3, 33, 3))
sketch2.addConstraint(Sketcher.Constraint("Vertical", 33, 3, 34, 3))
sketch2.addConstraint(Sketcher.Constraint("Vertical", 34, 3, 35, 3))
sketch2.addConstraint(Sketcher.Constraint("Vertical", 35, 3, 36, 3))
sketch2.addConstraint(Sketcher.Constraint("Vertical", 36, 3, 37, 3))
sketch2.addConstraint(Sketcher.Constraint("Vertical", 37, 3, 38, 3))
sketch2.addConstraint(Sketcher.Constraint("Vertical", 38, 3, 39, 3))
sketch2.addConstraint(Sketcher.Constraint("Vertical", 39, 3, 40, 3))
sketch2.addConstraint(Sketcher.Constraint("Vertical", 40, 3, 41, 3))
sketch2.addConstraint(Sketcher.Constraint("Vertical", 41, 3, 42, 3))
sketch2.addConstraint(Sketcher.Constraint("Vertical", 42, 3, 43, 3))
sketch2.addConstraint(Sketcher.Constraint("Vertical", 43, 3, 44, 3))
sketch2.addConstraint(Sketcher.Constraint("Vertical", 44, 3, 45, 3))
sketch2.addConstraint(Sketcher.Constraint("Vertical", 45, 3, 46, 3))
sketch2.addConstraint(Sketcher.Constraint("Vertical", 46, 3, 47, 3))
sketch2.addConstraint(Sketcher.Constraint("Vertical", 47, 3, 48, 3))
sketch2.addConstraint(Sketcher.Constraint("Vertical", 48, 3, 49, 3))
sketch2.addConstraint(Sketcher.Constraint("Vertical", 49, 3, 50, 3))
sketch2.addConstraint(Sketcher.Constraint("Vertical", 50, 3, 51, 3))
sketch2.addConstraint(Sketcher.Constraint("Vertical", 51, 3, 52, 3))
sketch2.addConstraint(Sketcher.Constraint("Vertical", 52, 3, 53, 3))
sketch2.addConstraint(Sketcher.Constraint("Vertical", 53, 3, 54, 3))
sketch2.addConstraint(Sketcher.Constraint("Vertical", 54, 3, 55, 3))
sketch2.addConstraint(Sketcher.Constraint("Vertical", 55, 3, 56, 3))
sketch2.addConstraint(Sketcher.Constraint("Vertical", 56, 3, 57, 3))
sketch2.addConstraint(Sketcher.Constraint("Vertical", 57, 3, 58, 3))
sketch2.addConstraint(Sketcher.Constraint("Vertical", 58, 3, 59, 3))
sketch2.addConstraint(Sketcher.Constraint("Vertical", 59, 3, 60, 3))
sketch2.addConstraint(Sketcher.Constraint("Vertical", 60, 3, 61, 3))
sketch2.addConstraint(Sketcher.Constraint("Vertical", 61, 3, 62, 3))
sketch2.addConstraint(Sketcher.Constraint("Vertical", 62, 3, 63, 3))
sketch2.addConstraint(Sketcher.Constraint("Vertical", 63, 3, 64, 3))
sketch2.addConstraint(Sketcher.Constraint("Vertical", 64, 3, 65, 3))
sketch2.addConstraint(Sketcher.Constraint("Diameter", 6, Q("1 mm")))
sketch2.addConstraint(Sketcher.Constraint("Radius", 0, Q("38.5 mm")))
sketch2.addConstraint(Sketcher.Constraint("DistanceX", 2, 1, 2, 2, Q("28 mm")))
sketch2.addConstraint(Sketcher.Constraint("DistanceY", 5, 1, 5, 2, Q("300 mm")))
sketch2.addConstraint(Sketcher.Constraint("DistanceY", -1, 1, 0, 3, Q("600 mm")))
sketch2.addConstraint(Sketcher.Constraint("DistanceY", -1, 1, 6, 3, Q("305 mm")))
sketch2.addConstraint(Sketcher.Constraint("DistanceY", -1, 1, 7, 3, Q("310 mm")))
sketch2.addConstraint(Sketcher.Constraint("DistanceY", -1, 1, 8, 3, Q("315 mm")))
sketch2.addConstraint(Sketcher.Constraint("DistanceY", -1, 1, 9, 3, Q("320 mm")))
sketch2.addConstraint(Sketcher.Constraint("DistanceY", -1, 1, 10, 3, Q("325 mm")))
sketch2.addConstraint(Sketcher.Constraint("DistanceY", -1, 1, 11, 3, Q("330 mm")))
sketch2.addConstraint(Sketcher.Constraint("DistanceY", -1, 1, 12, 3, Q("335 mm")))
sketch2.addConstraint(Sketcher.Constraint("DistanceY", -1, 1, 13, 3, Q("340 mm")))
sketch2.addConstraint(Sketcher.Constraint("DistanceY", -1, 1, 14, 3, Q("345 mm")))
sketch2.addConstraint(Sketcher.Constraint("DistanceY", -1, 1, 15, 3, Q("350 mm")))
sketch2.addConstraint(Sketcher.Constraint("DistanceY", -1, 1, 16, 3, Q("355 mm")))
sketch2.addConstraint(Sketcher.Constraint("DistanceY", -1, 1, 17, 3, Q("360 mm")))
sketch2.addConstraint(Sketcher.Constraint("DistanceY", -1, 1, 18, 3, Q("365 mm")))
sketch2.addConstraint(Sketcher.Constraint("DistanceY", -1, 1, 19, 3, Q("370 mm")))
sketch2.addConstraint(Sketcher.Constraint("DistanceY", -1, 1, 20, 3, Q("375 mm")))
sketch2.addConstraint(Sketcher.Constraint("DistanceY", -1, 1, 21, 3, Q("380 mm")))
sketch2.addConstraint(Sketcher.Constraint("DistanceY", -1, 1, 22, 3, Q("385 mm")))
sketch2.addConstraint(Sketcher.Constraint("DistanceY", -1, 1, 23, 3, Q("390 mm")))
sketch2.addConstraint(Sketcher.Constraint("DistanceY", -1, 1, 24, 3, Q("395 mm")))
sketch2.addConstraint(Sketcher.Constraint("DistanceY", -1, 1, 25, 3, Q("400 mm")))
sketch2.addConstraint(Sketcher.Constraint("DistanceY", -1, 1, 26, 3, Q("405 mm")))
sketch2.addConstraint(Sketcher.Constraint("DistanceY", -1, 1, 27, 3, Q("410 mm")))
sketch2.addConstraint(Sketcher.Constraint("DistanceY", -1, 1, 28, 3, Q("415 mm")))
sketch2.addConstraint(Sketcher.Constraint("DistanceY", -1, 1, 29, 3, Q("420 mm")))
sketch2.addConstraint(Sketcher.Constraint("DistanceY", -1, 1, 30, 3, Q("425 mm")))
sketch2.addConstraint(Sketcher.Constraint("DistanceY", -1, 1, 31, 3, Q("430 mm")))
sketch2.addConstraint(Sketcher.Constraint("DistanceY", -1, 1, 32, 3, Q("435 mm")))
sketch2.addConstraint(Sketcher.Constraint("DistanceY", -1, 1, 33, 3, Q("440 mm")))
sketch2.addConstraint(Sketcher.Constraint("DistanceY", -1, 1, 34, 3, Q("445 mm")))
sketch2.addConstraint(Sketcher.Constraint("DistanceY", -1, 1, 35, 3, Q("450 mm")))
sketch2.addConstraint(Sketcher.Constraint("DistanceY", -1, 1, 36, 3, Q("455 mm")))
sketch2.addConstraint(Sketcher.Constraint("DistanceY", -1, 1, 37, 3, Q("460 mm")))
sketch2.addConstraint(Sketcher.Constraint("DistanceY", -1, 1, 38, 3, Q("465 mm")))
sketch2.addConstraint(Sketcher.Constraint("DistanceY", -1, 1, 39, 3, Q("470 mm")))
sketch2.addConstraint(Sketcher.Constraint("DistanceY", -1, 1, 40, 3, Q("475 mm")))
sketch2.addConstraint(Sketcher.Constraint("DistanceY", -1, 1, 41, 3, Q("480 mm")))
sketch2.addConstraint(Sketcher.Constraint("DistanceY", -1, 1, 42, 3, Q("485 mm")))
sketch2.addConstraint(Sketcher.Constraint("DistanceY", -1, 1, 43, 3, Q("490 mm")))
sketch2.addConstraint(Sketcher.Constraint("DistanceY", -1, 1, 44, 3, Q("495 mm")))
sketch2.addConstraint(Sketcher.Constraint("DistanceY", -1, 1, 45, 3, Q("500 mm")))
sketch2.addConstraint(Sketcher.Constraint("DistanceY", -1, 1, 46, 3, Q("505 mm")))
sketch2.addConstraint(Sketcher.Constraint("DistanceY", -1, 1, 47, 3, Q("510 mm")))
sketch2.addConstraint(Sketcher.Constraint("DistanceY", -1, 1, 48, 3, Q("515 mm")))
sketch2.addConstraint(Sketcher.Constraint("DistanceY", -1, 1, 49, 3, Q("520 mm")))
sketch2.addConstraint(Sketcher.Constraint("DistanceY", -1, 1, 50, 3, Q("525 mm")))
sketch2.addConstraint(Sketcher.Constraint("DistanceY", -1, 1, 51, 3, Q("530 mm")))
sketch2.addConstraint(Sketcher.Constraint("DistanceY", -1, 1, 52, 3, Q("535 mm")))
sketch2.addConstraint(Sketcher.Constraint("DistanceY", -1, 1, 53, 3, Q("540 mm")))
sketch2.addConstraint(Sketcher.Constraint("DistanceY", -1, 1, 54, 3, Q("545 mm")))
sketch2.addConstraint(Sketcher.Constraint("DistanceY", -1, 1, 55, 3, Q("550 mm")))
sketch2.addConstraint(Sketcher.Constraint("DistanceY", -1, 1, 56, 3, Q("555 mm")))
sketch2.addConstraint(Sketcher.Constraint("DistanceY", -1, 1, 57, 3, Q("560 mm")))
sketch2.addConstraint(Sketcher.Constraint("DistanceY", -1, 1, 58, 3, Q("565 mm")))
sketch2.addConstraint(Sketcher.Constraint("DistanceY", -1, 1, 59, 3, Q("570 mm")))
sketch2.addConstraint(Sketcher.Constraint("DistanceY", -1, 1, 60, 3, Q("575 mm")))
sketch2.addConstraint(Sketcher.Constraint("DistanceY", -1, 1, 61, 3, Q("580 mm")))
sketch2.addConstraint(Sketcher.Constraint("DistanceY", -1, 1, 62, 3, Q("585 mm")))
sketch2.addConstraint(Sketcher.Constraint("DistanceY", -1, 1, 63, 3, Q("590 mm")))
sketch2.addConstraint(Sketcher.Constraint("DistanceY", -1, 1, 64, 3, Q("595 mm")))
pad2 = body2.newObject("PartDesign::Pad", "Pad001")
pad2.Profile = sketch2
pad2.Length = 2
doc.recompute()

mirrored2 = body2.newObject("PartDesign::Mirrored", "Mirrored001")
mirrored2.Originals = [pad2]
mirrored2.MirrorPlane = (doc.getObject("YZ_Plane001"), [""])
body2.Tip = mirrored2

doc.recompute()
